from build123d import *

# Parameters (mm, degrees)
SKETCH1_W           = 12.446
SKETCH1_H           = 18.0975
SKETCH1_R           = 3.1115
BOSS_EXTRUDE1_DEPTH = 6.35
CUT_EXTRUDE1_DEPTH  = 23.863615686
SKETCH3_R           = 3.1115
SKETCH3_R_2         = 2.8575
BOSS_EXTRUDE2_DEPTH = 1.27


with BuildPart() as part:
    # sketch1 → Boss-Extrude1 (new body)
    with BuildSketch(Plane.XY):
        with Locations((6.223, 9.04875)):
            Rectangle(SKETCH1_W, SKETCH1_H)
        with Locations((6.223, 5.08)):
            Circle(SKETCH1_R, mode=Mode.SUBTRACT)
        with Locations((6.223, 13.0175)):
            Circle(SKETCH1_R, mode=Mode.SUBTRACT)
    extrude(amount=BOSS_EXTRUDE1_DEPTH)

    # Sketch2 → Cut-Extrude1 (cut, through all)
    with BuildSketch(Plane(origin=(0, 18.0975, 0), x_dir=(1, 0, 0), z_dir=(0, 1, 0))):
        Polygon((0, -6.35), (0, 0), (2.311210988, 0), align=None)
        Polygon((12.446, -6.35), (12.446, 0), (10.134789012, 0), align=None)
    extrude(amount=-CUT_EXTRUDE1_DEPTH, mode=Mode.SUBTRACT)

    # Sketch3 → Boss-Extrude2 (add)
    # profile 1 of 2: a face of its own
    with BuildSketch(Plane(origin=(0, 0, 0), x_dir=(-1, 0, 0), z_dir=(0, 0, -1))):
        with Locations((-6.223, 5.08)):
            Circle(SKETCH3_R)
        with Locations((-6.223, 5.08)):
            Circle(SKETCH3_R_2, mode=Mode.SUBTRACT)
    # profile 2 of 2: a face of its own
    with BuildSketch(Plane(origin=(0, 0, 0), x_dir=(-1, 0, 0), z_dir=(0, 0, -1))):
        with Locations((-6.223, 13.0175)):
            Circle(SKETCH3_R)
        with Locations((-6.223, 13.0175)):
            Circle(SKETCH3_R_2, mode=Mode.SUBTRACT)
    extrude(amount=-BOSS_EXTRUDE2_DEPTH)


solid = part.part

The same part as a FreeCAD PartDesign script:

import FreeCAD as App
import Part
import Sketcher

V = App.Vector
Q = App.Units.Quantity

doc = App.newDocument("Part")
body = doc.addObject("PartDesign::Body", "Body")

# Sketch on XY plane
sketch1 = body.newObject("Sketcher::SketchObject", "Sketch")
sketch1.AttachmentSupport = (doc.getObject("XY_Plane"), [""])
sketch1.MapMode = "FlatFace"
sketch1.addGeometry([
    Part.LineSegment(V(0, 18.1, 0), V(0, 0, 0)),  # 0
    Part.LineSegment(V(0, 0, 0), V(12.4, 0, 0)),  # 1
    Part.LineSegment(V(12.4, 0, 0), V(12.4, 18.1, 0)),  # 2
    Part.LineSegment(V(12.4, 18.1, 0), V(0, 18.1, 0)),  # 3
    Part.Circle(V(6.2, 5.1, 0), V(0, 0, 1), 3.1),  # 4
    Part.Circle(V(6.2, 13, 0), V(0, 0, 1), 3.1),  # 5
], False)
sketch1.addConstraint([
    Sketcher.Constraint("Coincident", 0, 2, 1, 1),
    Sketcher.Constraint("Coincident", 1, 2, 2, 1),
    Sketcher.Constraint("Coincident", 2, 2, 3, 1),
    Sketcher.Constraint("Coincident", 3, 2, 0, 1),
    Sketcher.Constraint("Vertical", 0),
    Sketcher.Constraint("Horizontal", 1),
    Sketcher.Constraint("Vertical", 2),
    Sketcher.Constraint("Horizontal", 3),
    Sketcher.Constraint("Coincident", 0, 2, -1, 1),
    Sketcher.Constraint("Equal", 4, 5),
    Sketcher.Constraint("Vertical", 4, 3, 5, 3),
    Sketcher.Constraint("Diameter", 4, Q("0.245 in")),
    Sketcher.Constraint("DistanceX", 1, 1, 1, 2, Q("0.49 in")),
    Sketcher.Constraint("DistanceY", -1, 1, 4, 3, Q("0.2 in")),
    Sketcher.Constraint("DistanceY", 5, 3, 2, 2, Q("0.2 in")),
    Sketcher.Constraint("DistanceY", 0, 2, 0, 1, Q("0.7125 in")),
    Sketcher.Constraint("DistanceX", -1, 1, 4, 3, Q("0.245 in")),
])
pad1 = body.newObject("PartDesign::Pad", "Pad")
pad1.Profile = sketch1
pad1.Length = Q("0.25 in")

# Sketch on XZ plane
sketch2 = body.newObject("Sketcher::SketchObject", "Sketch001")
sketch2.AttachmentSupport = (doc.getObject("XZ_Plane"), [""])
sketch2.MapMode = "FlatFace"
sketch2.AttachmentOffset = App.Placement(V(0, 0, -0.7125 * 25.4), App.Rotation())
sketch2.addGeometry([
    Part.LineSegment(V(0, 0, 0), V(0, 6.3, 0)),  # 0
    Part.LineSegment(V(0, 6.3, 0), V(2.3, 0, 0)),  # 1
    Part.LineSegment(V(2.3, 0, 0), V(0, 0, 0)),  # 2
    Part.LineSegment(V(12.4, 6.3, 0), V(12.4, 0, 0)),  # 3
    Part.LineSegment(V(12.4, 0, 0), V(10.1, 0, 0)),  # 4
    Part.LineSegment(V(10.1, 0, 0), V(12.4, 6.3, 0)),  # 5
], False)
sketch2.addConstraint([
    Sketcher.Constraint("Coincident", 0, 2, 1, 1),
    Sketcher.Constraint("Coincident", 1, 2, 2, 1),
    Sketcher.Constraint("Coincident", 2, 2, 0, 1),
    Sketcher.Constraint("Coincident", 3, 2, 4, 1),
    Sketcher.Constraint("Coincident", 4, 2, 5, 1),
    Sketcher.Constraint("Coincident", 5, 2, 3, 1),
    Sketcher.Constraint("Vertical", 0),
    Sketcher.Constraint("Horizontal", 2),
    Sketcher.Constraint("Vertical", 3),
    Sketcher.Constraint("Horizontal", 4),
    Sketcher.Constraint("Coincident", 2, 2, -1, 1),
    Sketcher.Constraint("PointOnObject", 3, 2, -1),
    Sketcher.Constraint("Horizontal", 0, 2, 5, 2),
    Sketcher.Constraint("Equal", 2, 4),
    Sketcher.Constraint("Angle", 1, Q("-70 deg")),
    Sketcher.Constraint("DistanceY", 0, 1, 0, 2, Q("0.25 in")),
    Sketcher.Constraint("DistanceX", -1, 1, 3, 2, Q("0.49 in")),
])
pocket1 = body.newObject("PartDesign::Pocket", "Pocket")
pocket1.Profile = sketch2
pocket1.Type = "ThroughAll"
pocket1.Reversed = True

# Sketch on XY plane
sketch3 = body.newObject("Sketcher::SketchObject", "Sketch002")
sketch3.AttachmentSupport = (doc.getObject("XY_Plane"), [""])
sketch3.MapMode = "FlatFace"
sketch3.addGeometry([
    Part.Circle(V(6.2, 5.1, 0), V(0, 0, 1), 3.1),
    Part.Circle(V(6.2, 5.1, 0), V(0, 0, 1), 2.9),
    Part.Circle(V(6.2, 13, 0), V(0, 0, 1), 3.1),
    Part.Circle(V(6.2, 13, 0), V(0, 0, 1), 2.9),
], False)
sketch3.addConstraint([
    Sketcher.Constraint("Coincident", 1, 3, 0, 3),
    Sketcher.Constraint("Coincident", 3, 3, 2, 3),
    Sketcher.Constraint("Equal", 0, 2),
    Sketcher.Constraint("Equal", 1, 3),
    Sketcher.Constraint("Vertical", 1, 3, 2, 3),
    Sketcher.Constraint("Diameter", 0, Q("0.245 in")),
    Sketcher.Constraint("Diameter", 1, Q("0.225 in")),
    Sketcher.Constraint("DistanceY", -1, 1, 0, 3, Q("0.2 in")),
    Sketcher.Constraint("DistanceX", -1, 1, 0, 3, Q("0.245 in")),
    Sketcher.Constraint("DistanceY", 0, 3, 2, 3, Q("0.3125 in")),
])
pad2 = body.newObject("PartDesign::Pad", "Pad001")
pad2.Profile = sketch3
pad2.Length = Q("0.05 in")

doc.recompute()
